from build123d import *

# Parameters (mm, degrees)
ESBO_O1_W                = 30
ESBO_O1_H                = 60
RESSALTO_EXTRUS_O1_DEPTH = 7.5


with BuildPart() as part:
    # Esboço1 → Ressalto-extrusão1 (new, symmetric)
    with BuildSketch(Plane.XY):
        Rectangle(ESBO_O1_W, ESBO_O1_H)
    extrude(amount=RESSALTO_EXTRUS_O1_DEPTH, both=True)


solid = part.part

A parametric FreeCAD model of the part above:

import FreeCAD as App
import Part
import Sketcher
Q = App.Units.Quantity

doc = App.newDocument("Part")
body = doc.addObject("PartDesign::Body", "Body")

# Sketch on XY plane
sketch1 = body.newObject("Sketcher::SketchObject", "Sketch")
sketch1.AttachmentSupport = (doc.getObject("XY_Plane"), [""])
sketch1.MapMode = "FlatFace"
sketch1.addGeometry([
    Part.LineSegment(App.Vector(-15, 30, 0), App.Vector(-15, -30, 0)),
    Part.LineSegment(App.Vector(-15, -30, 0), App.Vector(15, -30, 0)),
    Part.LineSegment(App.Vector(15, -30, 0), App.Vector(15, 30, 0)),
    Part.LineSegment(App.Vector(15, 30, 0), App.Vector(-15, 30, 0)),
], False)
sketch1.addConstraint([
    Sketcher.Constraint("Coincident", 0, 2, 1, 1),
    Sketcher.Constraint("Coincident", 1, 2, 2, 1),
    Sketcher.Constraint("Coincident", 2, 2, 3, 1),
    Sketcher.Constraint("Coincident", 3, 2, 0, 1),
    Sketcher.Constraint("Vertical", 0),
    Sketcher.Constraint("Horizontal", 1),
    Sketcher.Constraint("Vertical", 2),
    Sketcher.Constraint("Horizontal", 3),
    Sketcher.Constraint("Symmetric", 0, 2, 2, 2, -1, 1),
    Sketcher.Constraint("DistanceX", 1, 1, 1, 2, Q("30 mm")),
    Sketcher.Constraint("DistanceY", 0, 2, 0, 1, Q("60 mm")),
])
pad1 = body.newObject("PartDesign::Pad", "Pad")
pad1.Profile = sketch1
pad1.Length = 15
pad1.Midplane = True

doc.recompute()
